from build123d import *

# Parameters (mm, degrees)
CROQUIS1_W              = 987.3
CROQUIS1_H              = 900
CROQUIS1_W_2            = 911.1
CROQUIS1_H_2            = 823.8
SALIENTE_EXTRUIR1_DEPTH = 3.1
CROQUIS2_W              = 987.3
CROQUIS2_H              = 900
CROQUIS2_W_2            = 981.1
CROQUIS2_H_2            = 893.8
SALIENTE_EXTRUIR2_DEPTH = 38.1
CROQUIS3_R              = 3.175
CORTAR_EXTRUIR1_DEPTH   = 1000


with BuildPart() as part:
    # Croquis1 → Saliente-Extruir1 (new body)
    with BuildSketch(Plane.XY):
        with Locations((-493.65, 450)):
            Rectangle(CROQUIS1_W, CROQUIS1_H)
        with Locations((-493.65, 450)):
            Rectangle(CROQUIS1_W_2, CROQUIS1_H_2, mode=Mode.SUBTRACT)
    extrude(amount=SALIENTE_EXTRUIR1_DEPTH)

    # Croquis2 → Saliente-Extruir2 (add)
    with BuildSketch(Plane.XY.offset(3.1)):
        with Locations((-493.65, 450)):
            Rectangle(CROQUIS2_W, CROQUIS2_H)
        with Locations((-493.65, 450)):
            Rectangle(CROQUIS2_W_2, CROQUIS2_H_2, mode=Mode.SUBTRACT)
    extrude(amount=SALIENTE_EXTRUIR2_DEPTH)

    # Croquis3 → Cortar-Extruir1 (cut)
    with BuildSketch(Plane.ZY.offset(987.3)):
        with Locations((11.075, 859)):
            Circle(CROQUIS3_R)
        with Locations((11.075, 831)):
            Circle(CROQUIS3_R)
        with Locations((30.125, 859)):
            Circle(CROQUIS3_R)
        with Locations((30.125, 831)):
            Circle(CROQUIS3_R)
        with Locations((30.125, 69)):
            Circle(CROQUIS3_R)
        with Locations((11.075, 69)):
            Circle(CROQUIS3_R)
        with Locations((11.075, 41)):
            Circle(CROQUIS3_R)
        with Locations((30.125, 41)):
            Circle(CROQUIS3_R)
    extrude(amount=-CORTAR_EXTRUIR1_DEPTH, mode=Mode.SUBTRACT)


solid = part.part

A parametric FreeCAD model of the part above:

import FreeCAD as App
import Part
import Sketcher
from FreeCAD import Vector

doc = App.newDocument("Part")
body = doc.addObject("PartDesign::Body", "Body")

# Sketch on XY plane
sketch1 = doc.addObject("Sketcher::SketchObject", "Sketch")
body.addObject(sketch1)
sketch1.AttachmentSupport = (doc.XY_Plane, [""])
sketch1.MapMode = "FlatFace"
sketch1.addGeometry([
    Part.LineSegment(Vector(-987.3, 900, 0), Vector(-987.3, 0, 0)),  # 0
    Part.LineSegment(Vector(-987.3, 0, 0), Vector(0, 0, 0)),  # 1
    Part.LineSegment(Vector(0, 0, 0), Vector(0, 900, 0)),  # 2
    Part.LineSegment(Vector(0, 900, 0), Vector(-987.3, 900, 0)),  # 3
    Part.LineSegment(Vector(-38.1, 38.1, 0), Vector(-949.2, 38.1, 0)),  # 4
    Part.LineSegment(Vector(-949.2, 38.1, 0), Vector(-949.2, 861.9, 0)),  # 5
    Part.LineSegment(Vector(-949.2, 861.9, 0), Vector(-38.1, 861.9, 0)),  # 6
    Part.LineSegment(Vector(-38.1, 861.9, 0), Vector(-38.1, 38.1, 0)),  # 7
], False)
sketch1.addConstraint([
    Sketcher.Constraint("Coincident", 0, 2, 1, 1),
    Sketcher.Constraint("Coincident", 1, 2, 2, 1),
    Sketcher.Constraint("Coincident", 2, 2, 3, 1),
    Sketcher.Constraint("Coincident", 3, 2, 0, 1),
    Sketcher.Constraint("Coincident", 4, 2, 5, 1),
    Sketcher.Constraint("Coincident", 5, 2, 6, 1),
    Sketcher.Constraint("Coincident", 6, 2, 7, 1),
    Sketcher.Constraint("Coincident", 7, 2, 4, 1),
    Sketcher.Constraint("Vertical", 0),
    Sketcher.Constraint("Horizontal", 1),
    Sketcher.Constraint("Vertical", 2),
    Sketcher.Constraint("Horizontal", 3),
    Sketcher.Constraint("Horizontal", 4),
    Sketcher.Constraint("Vertical", 5),
    Sketcher.Constraint("Horizontal", 6),
    Sketcher.Constraint("Vertical", 7),
    Sketcher.Constraint("Coincident", 1, 2, -1, 1),
    Sketcher.Constraint("DistanceY", 0, 2, 0, 1, 900.0),
    Sketcher.Constraint("DistanceX", 1, 1, 1, 2, 987.3),
    Sketcher.Constraint("DistanceX", 4, 2, 4, 1, 911.1),
    Sketcher.Constraint("DistanceY", 5, 1, 5, 2, 823.8),
    Sketcher.Constraint("DistanceX", 4, 2, -1, 1, 949.2),
    Sketcher.Constraint("DistanceY", -1, 1, 4, 2, 38.1),
])
pad1 = doc.addObject("PartDesign::Pad", "Pad")
body.addObject(pad1)
pad1.Profile = sketch1
pad1.Length = 3.1

# Sketch on XY plane
sketch2 = doc.addObject("Sketcher::SketchObject", "Sketch001")
body.addObject(sketch2)
sketch2.AttachmentSupport = (doc.XY_Plane, [""])
sketch2.MapMode = "FlatFace"
sketch2.AttachmentOffset = App.Placement(Vector(0, 0, 3.1), App.Rotation())
sketch2.addGeometry([
    Part.LineSegment(Vector(-987.3, 900, 0), Vector(-987.3, 0, 0)),  # 0
    Part.LineSegment(Vector(-987.3, 0, 0), Vector(0, 0, 0)),  # 1
    Part.LineSegment(Vector(0, 0, 0), Vector(0, 900, 0)),  # 2
    Part.LineSegment(Vector(0, 900, 0), Vector(-987.3, 900, 0)),  # 3
    Part.LineSegment(Vector(-3.1, 3.1, 0), Vector(-984.2, 3.1, 0)),  # 4
    Part.LineSegment(Vector(-984.2, 3.1, 0), Vector(-984.2, 896.9, 0)),  # 5
    Part.LineSegment(Vector(-984.2, 896.9, 0), Vector(-3.1, 896.9, 0)),  # 6
    Part.LineSegment(Vector(-3.1, 896.9, 0), Vector(-3.1, 3.1, 0)),  # 7
], False)
sketch2.addConstraint([
    Sketcher.Constraint("Coincident", 0, 2, 1, 1),
    Sketcher.Constraint("Coincident", 1, 2, 2, 1),
    Sketcher.Constraint("Coincident", 2, 2, 3, 1),
    Sketcher.Constraint("Coincident", 3, 2, 0, 1),
    Sketcher.Constraint("Coincident", 4, 2, 5, 1),
    Sketcher.Constraint("Coincident", 5, 2, 6, 1),
    Sketcher.Constraint("Coincident", 6, 2, 7, 1),
    Sketcher.Constraint("Coincident", 7, 2, 4, 1),
    Sketcher.Constraint("Vertical", 0),
    Sketcher.Constraint("Horizontal", 1),
    Sketcher.Constraint("Vertical", 2),
    Sketcher.Constraint("Horizontal", 3),
    Sketcher.Constraint("Horizontal", 4),
    Sketcher.Constraint("Vertical", 5),
    Sketcher.Constraint("Horizontal", 6),
    Sketcher.Constraint("Vertical", 7),
    Sketcher.Constraint("Coincident", 1, 2, -1, 1),
    Sketcher.Constraint("DistanceY", 0, 2, 0, 1, 900.0),
    Sketcher.Constraint("DistanceX", 1, 1, 1, 2, 987.3),
    Sketcher.Constraint("DistanceX", 4, 2, 4, 1, 981.1),
    Sketcher.Constraint("DistanceY", 5, 1, 5, 2, 893.8),
    Sketcher.Constraint("DistanceX", 4, 2, -1, 1, 984.2),
    Sketcher.Constraint("DistanceY", -1, 1, 4, 2, 3.1),
])
pad2 = doc.addObject("PartDesign::Pad", "Pad001")
body.addObject(pad2)
pad2.Profile = sketch2
pad2.Length = 38.1

# Sketch on YZ plane
sketch3 = doc.addObject("Sketcher::SketchObject", "Sketch002")
body.addObject(sketch3)
sketch3.AttachmentSupport = (doc.YZ_Plane, [""])
sketch3.MapMode = "FlatFace"
sketch3.AttachmentOffset = App.Placement(Vector(0, 0, -987.3), App.Rotation())
sketch3.addGeometry([
    Part.Circle(Vector(859, 11.075, 0), Vector(0, 0, 1), 3.175),  # 0
    Part.Circle(Vector(831, 11.075, 0), Vector(0, 0, 1), 3.175),  # 1
    Part.Circle(Vector(859, 30.125, 0), Vector(0, 0, 1), 3.175),  # 2
    Part.Circle(Vector(831, 30.125, 0), Vector(0, 0, 1), 3.175),  # 3
    Part.Circle(Vector(69, 30.125, 0), Vector(0, 0, 1), 3.175),  # 4
    Part.Circle(Vector(69, 11.075, 0), Vector(0, 0, 1), 3.175),  # 5
    Part.Circle(Vector(41, 11.075, 0), Vector(0, 0, 1), 3.175),  # 6
    Part.Circle(Vector(41, 30.125, 0), Vector(0, 0, 1), 3.175),  # 7
], False)
sketch3.addConstraint([
    Sketcher.Constraint("Equal", 0, 1),
    Sketcher.Constraint("Equal", 1, 2),
    Sketcher.Constraint("Equal", 2, 3),
    Sketcher.Constraint("Equal", 3, 4),
    Sketcher.Constraint("Equal", 4, 5),
    Sketcher.Constraint("Equal", 5, 6),
    Sketcher.Constraint("Equal", 6, 7),
    Sketcher.Constraint("Horizontal", 0, 3, 1, 3),
    Sketcher.Constraint("Horizontal", 2, 3, 3, 3),
    Sketcher.Constraint("Horizontal", 3, 3, 4, 3),
    Sketcher.Constraint("Horizontal", 1, 3, 5, 3),
    Sketcher.Constraint("Horizontal", 5, 3, 6, 3),
    Sketcher.Constraint("Horizontal", 4, 3, 7, 3),
    Sketcher.Constraint("Vertical", 0, 3, 2, 3),
    Sketcher.Constraint("Vertical", 1, 3, 3, 3),
    Sketcher.Constraint("Vertical", 4, 3, 5, 3),
    Sketcher.Constraint("Vertical", 6, 3, 7, 3),
    Sketcher.Constraint("Diameter", 0, 6.35),
    Sketcher.Constraint("DistanceX", -1, 1, 0, 3, 859.0),
    Sketcher.Constraint("DistanceX", -1, 1, 1, 3, 831.0),
    Sketcher.Constraint("DistanceX", -1, 1, 4, 3, 69.0),
    Sketcher.Constraint("DistanceX", -1, 1, 6, 3, 41.0),
    Sketcher.Constraint("DistanceY", 0, 3, 2, 3, 19.05),
    Sketcher.Constraint("DistanceY", -1, 1, 0, 3, 11.075),
])
pocket1 = doc.addObject("PartDesign::Pocket", "Pocket")
body.addObject(pocket1)
pocket1.Profile = sketch3
pocket1.Length = 1000
pocket1.Reversed = True

doc.recompute()
